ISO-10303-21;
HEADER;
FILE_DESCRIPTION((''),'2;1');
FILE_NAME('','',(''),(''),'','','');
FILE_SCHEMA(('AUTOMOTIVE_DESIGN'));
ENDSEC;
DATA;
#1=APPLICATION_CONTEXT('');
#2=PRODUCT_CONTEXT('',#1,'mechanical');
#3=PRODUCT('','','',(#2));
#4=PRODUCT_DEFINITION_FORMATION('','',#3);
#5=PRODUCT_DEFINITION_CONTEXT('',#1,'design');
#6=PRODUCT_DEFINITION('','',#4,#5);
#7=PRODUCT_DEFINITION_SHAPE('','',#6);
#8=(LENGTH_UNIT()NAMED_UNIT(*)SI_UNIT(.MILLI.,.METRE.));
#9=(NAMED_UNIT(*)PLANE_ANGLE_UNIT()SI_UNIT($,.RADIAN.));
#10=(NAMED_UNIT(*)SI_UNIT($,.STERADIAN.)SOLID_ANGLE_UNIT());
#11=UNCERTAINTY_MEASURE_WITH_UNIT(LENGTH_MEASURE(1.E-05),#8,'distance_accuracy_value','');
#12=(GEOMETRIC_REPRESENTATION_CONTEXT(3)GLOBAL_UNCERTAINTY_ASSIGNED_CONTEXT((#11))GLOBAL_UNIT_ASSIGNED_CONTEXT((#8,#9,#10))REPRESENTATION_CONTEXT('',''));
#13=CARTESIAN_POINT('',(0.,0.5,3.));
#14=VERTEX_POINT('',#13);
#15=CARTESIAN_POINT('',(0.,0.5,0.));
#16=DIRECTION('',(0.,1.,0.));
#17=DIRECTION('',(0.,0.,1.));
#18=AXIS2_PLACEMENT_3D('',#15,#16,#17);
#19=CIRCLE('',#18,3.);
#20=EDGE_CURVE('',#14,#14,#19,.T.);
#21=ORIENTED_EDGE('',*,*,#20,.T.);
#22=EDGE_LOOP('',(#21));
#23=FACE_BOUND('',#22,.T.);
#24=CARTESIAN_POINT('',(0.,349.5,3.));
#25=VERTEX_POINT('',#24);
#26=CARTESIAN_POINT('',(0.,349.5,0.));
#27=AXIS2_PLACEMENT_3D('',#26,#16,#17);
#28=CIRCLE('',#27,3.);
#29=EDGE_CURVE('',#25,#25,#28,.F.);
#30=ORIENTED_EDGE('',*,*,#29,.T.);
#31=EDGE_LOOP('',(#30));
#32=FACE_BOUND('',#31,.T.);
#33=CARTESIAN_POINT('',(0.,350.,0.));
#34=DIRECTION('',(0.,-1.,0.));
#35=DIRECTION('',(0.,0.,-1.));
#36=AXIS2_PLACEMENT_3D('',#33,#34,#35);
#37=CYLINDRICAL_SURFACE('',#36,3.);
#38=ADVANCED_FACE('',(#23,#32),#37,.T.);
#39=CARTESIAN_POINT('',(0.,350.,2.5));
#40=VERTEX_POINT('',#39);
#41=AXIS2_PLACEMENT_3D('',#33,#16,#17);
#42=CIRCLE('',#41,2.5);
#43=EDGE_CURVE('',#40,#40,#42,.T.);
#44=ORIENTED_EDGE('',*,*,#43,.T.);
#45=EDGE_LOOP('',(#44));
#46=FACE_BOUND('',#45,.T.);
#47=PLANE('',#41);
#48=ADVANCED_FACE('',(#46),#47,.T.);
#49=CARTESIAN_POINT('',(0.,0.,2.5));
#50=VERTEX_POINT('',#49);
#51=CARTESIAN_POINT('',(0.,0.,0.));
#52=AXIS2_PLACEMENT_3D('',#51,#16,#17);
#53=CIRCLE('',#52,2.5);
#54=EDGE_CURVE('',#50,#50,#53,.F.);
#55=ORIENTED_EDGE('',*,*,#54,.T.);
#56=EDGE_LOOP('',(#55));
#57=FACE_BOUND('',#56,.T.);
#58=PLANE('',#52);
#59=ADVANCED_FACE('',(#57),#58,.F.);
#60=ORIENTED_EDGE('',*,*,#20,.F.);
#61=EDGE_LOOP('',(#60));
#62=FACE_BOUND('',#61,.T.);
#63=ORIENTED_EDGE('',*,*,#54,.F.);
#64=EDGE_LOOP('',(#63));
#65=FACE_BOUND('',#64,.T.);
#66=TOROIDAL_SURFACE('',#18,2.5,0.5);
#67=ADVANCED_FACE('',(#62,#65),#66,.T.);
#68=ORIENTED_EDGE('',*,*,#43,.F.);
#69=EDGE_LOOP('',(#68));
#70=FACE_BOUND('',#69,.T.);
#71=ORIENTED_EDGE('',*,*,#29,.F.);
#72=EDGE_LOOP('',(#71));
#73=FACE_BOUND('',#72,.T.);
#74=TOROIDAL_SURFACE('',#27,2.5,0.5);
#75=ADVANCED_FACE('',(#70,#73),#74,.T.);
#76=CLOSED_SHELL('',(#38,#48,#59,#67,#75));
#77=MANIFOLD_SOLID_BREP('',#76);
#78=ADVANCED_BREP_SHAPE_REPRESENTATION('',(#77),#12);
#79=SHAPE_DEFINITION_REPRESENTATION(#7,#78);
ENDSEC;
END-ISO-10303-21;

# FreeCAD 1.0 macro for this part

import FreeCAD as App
import Part
import Sketcher
Q = App.Units.Quantity


def edges_at(feature, points):
    """Names of the edges that pass closest to the given points."""
    edges = feature.Shape.Edges
    near = lambda p: min(range(len(edges)), key=lambda i: edges[i].distToShape(Part.Vertex(*p))[0])
    return sorted({f"Edge{near(p) + 1}" for p in points})

doc = App.newDocument("Part")
body = doc.addObject("PartDesign::Body", "Body")

# Sketch on XZ plane
sketch1 = doc.addObject("Sketcher::SketchObject", "Sketch")
body.addObject(sketch1)
sketch1.AttachmentSupport = (doc.XZ_Plane, [""])
sketch1.MapMode = "FlatFace"
sketch1.addGeometry(Part.Circle(App.Vector(0, 0, 0), App.Vector(0, 0, 1), 3), False)
sketch1.addConstraint([
    Sketcher.Constraint("Coincident", 0, 3, -1, 1),
    Sketcher.Constraint("Diameter", 0, Q("6 mm")),
])
pad1 = doc.addObject("PartDesign::Pad", "Pad")
body.addObject(pad1)
pad1.Profile = sketch1
pad1.Length = 350
pad1.Reversed = True
doc.recompute()

fillet = doc.addObject("PartDesign::Fillet", "Fillet")
body.addObject(fillet)
fillet.Base = (pad1, edges_at(pad1, [(0, 0, -3)]))
fillet.Radius = 0.5
doc.recompute()

fillet2 = doc.addObject("PartDesign::Fillet", "Fillet001")
body.addObject(fillet2)
fillet2.Base = (fillet, edges_at(fillet, [(0, 350, -3)]))
fillet2.Radius = 0.5

doc.recompute()
